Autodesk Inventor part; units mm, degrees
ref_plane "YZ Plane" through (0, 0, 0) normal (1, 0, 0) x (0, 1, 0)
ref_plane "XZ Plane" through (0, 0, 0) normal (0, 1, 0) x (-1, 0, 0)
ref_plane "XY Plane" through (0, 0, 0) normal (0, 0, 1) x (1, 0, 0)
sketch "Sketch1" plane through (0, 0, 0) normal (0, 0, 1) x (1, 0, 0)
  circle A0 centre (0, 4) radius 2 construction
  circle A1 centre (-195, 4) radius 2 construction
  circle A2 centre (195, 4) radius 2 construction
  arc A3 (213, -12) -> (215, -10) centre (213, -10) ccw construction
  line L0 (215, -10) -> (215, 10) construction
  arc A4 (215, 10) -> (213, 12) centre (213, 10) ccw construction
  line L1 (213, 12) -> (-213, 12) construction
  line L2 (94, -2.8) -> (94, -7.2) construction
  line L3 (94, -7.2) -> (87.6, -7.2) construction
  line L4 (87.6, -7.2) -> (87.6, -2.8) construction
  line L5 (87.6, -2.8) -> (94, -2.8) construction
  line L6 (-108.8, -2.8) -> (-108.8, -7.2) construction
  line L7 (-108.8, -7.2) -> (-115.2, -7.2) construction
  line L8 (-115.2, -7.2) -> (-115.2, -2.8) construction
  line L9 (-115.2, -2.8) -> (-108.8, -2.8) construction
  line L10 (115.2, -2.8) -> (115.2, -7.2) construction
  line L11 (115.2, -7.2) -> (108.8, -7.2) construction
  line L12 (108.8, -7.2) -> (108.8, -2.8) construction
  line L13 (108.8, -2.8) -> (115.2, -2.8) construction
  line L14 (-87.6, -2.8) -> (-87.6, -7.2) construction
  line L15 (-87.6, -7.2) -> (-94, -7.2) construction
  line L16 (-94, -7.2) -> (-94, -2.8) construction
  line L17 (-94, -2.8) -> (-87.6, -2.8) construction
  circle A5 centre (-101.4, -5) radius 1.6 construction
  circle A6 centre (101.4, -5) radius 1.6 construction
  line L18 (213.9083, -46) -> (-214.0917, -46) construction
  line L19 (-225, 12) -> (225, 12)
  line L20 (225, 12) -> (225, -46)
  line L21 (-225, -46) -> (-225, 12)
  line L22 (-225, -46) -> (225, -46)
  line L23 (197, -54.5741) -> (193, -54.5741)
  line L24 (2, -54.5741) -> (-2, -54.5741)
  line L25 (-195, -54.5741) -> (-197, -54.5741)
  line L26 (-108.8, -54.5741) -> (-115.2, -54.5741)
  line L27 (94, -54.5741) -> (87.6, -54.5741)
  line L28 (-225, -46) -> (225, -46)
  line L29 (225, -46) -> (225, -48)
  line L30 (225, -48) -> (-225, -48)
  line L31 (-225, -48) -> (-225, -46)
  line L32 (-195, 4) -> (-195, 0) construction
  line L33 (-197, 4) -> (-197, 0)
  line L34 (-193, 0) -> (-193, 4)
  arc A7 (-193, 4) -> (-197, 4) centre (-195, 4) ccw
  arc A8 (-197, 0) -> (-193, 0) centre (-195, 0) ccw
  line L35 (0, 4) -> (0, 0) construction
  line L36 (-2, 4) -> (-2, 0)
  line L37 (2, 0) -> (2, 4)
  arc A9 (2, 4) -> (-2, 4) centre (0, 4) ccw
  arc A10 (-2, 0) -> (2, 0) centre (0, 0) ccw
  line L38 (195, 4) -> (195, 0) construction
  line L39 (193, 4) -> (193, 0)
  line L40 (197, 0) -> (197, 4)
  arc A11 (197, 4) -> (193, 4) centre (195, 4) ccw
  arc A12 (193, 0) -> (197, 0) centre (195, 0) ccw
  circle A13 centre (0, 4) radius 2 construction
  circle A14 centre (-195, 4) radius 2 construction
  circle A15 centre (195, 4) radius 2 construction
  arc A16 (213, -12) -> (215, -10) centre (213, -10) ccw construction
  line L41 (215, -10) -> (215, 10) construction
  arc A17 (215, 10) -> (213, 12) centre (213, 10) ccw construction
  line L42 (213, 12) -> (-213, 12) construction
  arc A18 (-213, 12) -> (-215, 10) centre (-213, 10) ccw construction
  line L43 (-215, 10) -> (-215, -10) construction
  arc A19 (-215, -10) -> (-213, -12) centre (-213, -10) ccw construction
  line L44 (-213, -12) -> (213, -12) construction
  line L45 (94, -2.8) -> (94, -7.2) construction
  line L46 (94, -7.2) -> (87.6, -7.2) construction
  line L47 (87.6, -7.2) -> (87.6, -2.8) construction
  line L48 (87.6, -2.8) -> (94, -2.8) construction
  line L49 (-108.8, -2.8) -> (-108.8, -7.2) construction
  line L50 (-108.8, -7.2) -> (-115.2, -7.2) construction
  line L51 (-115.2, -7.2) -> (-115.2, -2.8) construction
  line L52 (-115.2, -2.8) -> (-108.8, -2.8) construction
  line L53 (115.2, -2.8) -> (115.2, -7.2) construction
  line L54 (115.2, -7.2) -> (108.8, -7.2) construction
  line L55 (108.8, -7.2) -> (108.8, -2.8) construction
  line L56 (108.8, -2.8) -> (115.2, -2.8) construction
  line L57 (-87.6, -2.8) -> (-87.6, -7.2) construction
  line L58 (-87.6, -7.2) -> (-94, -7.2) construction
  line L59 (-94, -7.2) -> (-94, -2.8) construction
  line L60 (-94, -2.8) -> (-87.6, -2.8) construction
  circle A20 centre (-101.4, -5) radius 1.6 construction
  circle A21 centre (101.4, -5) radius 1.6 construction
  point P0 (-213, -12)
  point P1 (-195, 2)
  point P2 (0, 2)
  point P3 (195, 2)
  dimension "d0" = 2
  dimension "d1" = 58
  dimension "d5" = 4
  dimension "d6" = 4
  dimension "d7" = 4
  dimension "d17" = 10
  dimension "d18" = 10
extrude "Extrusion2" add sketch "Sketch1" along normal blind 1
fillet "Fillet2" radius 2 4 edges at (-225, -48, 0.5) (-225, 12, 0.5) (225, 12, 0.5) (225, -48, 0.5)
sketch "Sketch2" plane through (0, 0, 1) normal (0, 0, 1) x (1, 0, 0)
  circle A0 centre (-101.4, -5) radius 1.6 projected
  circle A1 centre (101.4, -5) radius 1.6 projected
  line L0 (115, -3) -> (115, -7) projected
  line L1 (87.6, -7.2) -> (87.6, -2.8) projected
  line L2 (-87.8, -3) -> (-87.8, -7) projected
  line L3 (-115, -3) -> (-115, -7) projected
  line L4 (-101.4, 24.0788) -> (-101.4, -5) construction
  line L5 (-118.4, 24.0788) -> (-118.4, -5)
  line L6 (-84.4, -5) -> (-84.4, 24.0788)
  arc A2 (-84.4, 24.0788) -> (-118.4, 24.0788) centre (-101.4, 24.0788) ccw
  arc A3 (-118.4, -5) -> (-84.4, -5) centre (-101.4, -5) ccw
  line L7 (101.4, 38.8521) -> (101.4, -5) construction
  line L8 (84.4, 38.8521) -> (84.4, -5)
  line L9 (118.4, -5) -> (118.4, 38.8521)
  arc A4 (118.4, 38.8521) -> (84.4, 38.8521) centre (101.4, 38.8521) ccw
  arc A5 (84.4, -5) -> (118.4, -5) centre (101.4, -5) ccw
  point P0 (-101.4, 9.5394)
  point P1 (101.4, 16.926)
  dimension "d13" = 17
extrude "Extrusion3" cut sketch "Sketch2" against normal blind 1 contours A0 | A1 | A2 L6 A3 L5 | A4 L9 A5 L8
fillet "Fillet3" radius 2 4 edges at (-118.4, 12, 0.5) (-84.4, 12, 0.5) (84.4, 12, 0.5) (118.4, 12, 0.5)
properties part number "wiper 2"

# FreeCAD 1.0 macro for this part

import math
import FreeCAD as App
import Part
import Sketcher

V = App.Vector


def edges_at(feature, points):
    """Names of the edges that pass closest to the given points."""
    edges = feature.Shape.Edges
    near = lambda p: min(range(len(edges)), key=lambda i: edges[i].distToShape(Part.Vertex(*p))[0])
    return sorted({f"Edge{near(p) + 1}" for p in points})

doc = App.newDocument("Part")
body = doc.addObject("PartDesign::Body", "Body")

# Sketch on XY plane
sketch1 = body.newObject("Sketcher::SketchObject", "Sketch")
sketch1.AttachmentSupport = (doc.getObject("XY_Plane"), [""])
sketch1.MapMode = "FlatFace"
sketch1.addGeometry([
    Part.LineSegment(V(225, 12, 0), V(-225, 12, 0)),  # 0
    Part.LineSegment(V(-225, 12, 0), V(-225, -48, 0)),  # 1
    Part.LineSegment(V(-225, -48, 0), V(225, -48, 0)),  # 2
    Part.LineSegment(V(225, -48, 0), V(225, 12, 0)),  # 3
    Part.LineSegment(V(-197, 0, 0), V(-197, 4, 0)),  # 4
    Part.ArcOfCircle(Part.Circle(V(-195, 4, 0), V(0, 0, 1), 2), math.radians(0), math.radians(180)),  # 5
    Part.LineSegment(V(-193, 4, 0), V(-193, 0, 0)),  # 6
    Part.ArcOfCircle(Part.Circle(V(-195, 0, 0), V(0, 0, 1), 2), math.radians(180), math.radians(360)),  # 7
    Part.LineSegment(V(-2, 0, 0), V(-2, 4, 0)),  # 8
    Part.ArcOfCircle(Part.Circle(V(0, 4, 0), V(0, 0, 1), 2), math.radians(0), math.radians(180)),  # 9
    Part.LineSegment(V(2, 4, 0), V(2, 0, 0)),  # 10
    Part.ArcOfCircle(Part.Circle(V(0, 0, 0), V(0, 0, 1), 2), math.radians(180), math.radians(360)),  # 11
    Part.LineSegment(V(193, 0, 0), V(193, 4, 0)),  # 12
    Part.ArcOfCircle(Part.Circle(V(195, 4, 0), V(0, 0, 1), 2), math.radians(0), math.radians(180)),  # 13
    Part.LineSegment(V(197, 4, 0), V(197, 0, 0)),  # 14
    Part.ArcOfCircle(Part.Circle(V(195, 0, 0), V(0, 0, 1), 2), math.radians(180), math.radians(360)),  # 15
], False)
sketch1.addConstraint([
    Sketcher.Constraint("Coincident", 0, 2, 1, 1),
    Sketcher.Constraint("Coincident", 1, 2, 2, 1),
    Sketcher.Constraint("Coincident", 2, 2, 3, 1),
    Sketcher.Constraint("Coincident", 3, 2, 0, 1),
    Sketcher.Constraint("Tangent", 4, 2, 5, 2),
    Sketcher.Constraint("Tangent", 5, 1, 6, 1),
    Sketcher.Constraint("Tangent", 6, 2, 7, 2),
    Sketcher.Constraint("Tangent", 7, 1, 4, 1),
    Sketcher.Constraint("Tangent", 8, 2, 9, 2),
    Sketcher.Constraint("Tangent", 9, 1, 10, 1),
    Sketcher.Constraint("Tangent", 10, 2, 11, 2),
    Sketcher.Constraint("Tangent", 11, 1, 8, 1),
    Sketcher.Constraint("Tangent", 12, 2, 13, 2),
    Sketcher.Constraint("Tangent", 13, 1, 14, 1),
    Sketcher.Constraint("Tangent", 14, 2, 15, 2),
    Sketcher.Constraint("Tangent", 15, 1, 12, 1),
    Sketcher.Constraint("Horizontal", 0),
    Sketcher.Constraint("Vertical", 1),
    Sketcher.Constraint("Horizontal", 2),
    Sketcher.Constraint("Vertical", 3),
    Sketcher.Constraint("Vertical", 4),
    Sketcher.Constraint("Vertical", 6),
    Sketcher.Constraint("Vertical", 8),
    Sketcher.Constraint("Vertical", 10),
    Sketcher.Constraint("Vertical", 12),
    Sketcher.Constraint("Vertical", 14),
    Sketcher.Constraint("Coincident", 11, 3, -1, 1),
    Sketcher.Constraint("Equal", 7, 9),
    Sketcher.Constraint("Equal", 11, 13),
    Sketcher.Constraint("Symmetric", 7, 3, 15, 3, -1, 1),
    Sketcher.Constraint("PointOnObject", 7, 3, -1),
    Sketcher.Constraint("Horizontal", 5, 3, 9, 3),
    Sketcher.Constraint("Horizontal", 9, 3, 13, 3),
    Sketcher.Constraint("Radius", 5, 2.0),
    Sketcher.Constraint("DistanceY", 4, 1, 4, 2, 4.0),
    Sketcher.Constraint("DistanceX", 0, 2, 0, 1, 450.0),
    Sketcher.Constraint("DistanceY", 1, 2, 1, 1, 60.0),
    Sketcher.Constraint("DistanceX", 5, 3, -1, 1, 195.0),
    Sketcher.Constraint("DistanceX", 0, 2, -1, 1, 225.0),
    Sketcher.Constraint("DistanceY", -1, 1, 0, 2, 12.0),
])
pad1 = body.newObject("PartDesign::Pad", "Pad")
pad1.Profile = sketch1
pad1.Length = 1
doc.recompute()

fillet = body.newObject("PartDesign::Fillet", "Fillet")
fillet.Base = (pad1, edges_at(pad1, [
    (-225, -48, 0.5),
    (-225, 12, 0.5),
    (225, 12, 0.5),
    (225, -48, 0.5),
]))
fillet.Radius = 2

# Sketch on XY plane
sketch2 = body.newObject("Sketcher::SketchObject", "Sketch001")
sketch2.AttachmentSupport = (doc.getObject("XY_Plane"), [""])
sketch2.MapMode = "FlatFace"
sketch2.AttachmentOffset = App.Placement(V(0, 0, 1), App.Rotation())
sketch2.addGeometry([
    Part.ArcOfCircle(Part.Circle(V(-101, 24, 0), V(0, 0, 1), 17), math.radians(0), math.radians(180)),  # 0
    Part.LineSegment(V(-118, 24, 0), V(-118, -5, 0)),  # 1
    Part.ArcOfCircle(Part.Circle(V(-101, -5, 0), V(0, 0, 1), 17), math.radians(180), math.radians(360)),  # 2
    Part.LineSegment(V(-84, -5, 0), V(-84, 24, 0)),  # 3
    Part.ArcOfCircle(Part.Circle(V(101, 39, 0), V(0, 0, 1), 17), math.radians(0), math.radians(180)),  # 4
    Part.LineSegment(V(84, 39, 0), V(84, -5, 0)),  # 5
    Part.ArcOfCircle(Part.Circle(V(101, -5, 0), V(0, 0, 1), 17), math.radians(180), math.radians(360)),  # 6
    Part.LineSegment(V(118, -5, 0), V(118, 39, 0)),  # 7
], False)
sketch2.addConstraint([
    Sketcher.Constraint("Tangent", 0, 2, 1, 1),
    Sketcher.Constraint("Tangent", 1, 2, 2, 1),
    Sketcher.Constraint("Tangent", 2, 2, 3, 1),
    Sketcher.Constraint("Tangent", 3, 2, 0, 1),
    Sketcher.Constraint("Tangent", 4, 2, 5, 1),
    Sketcher.Constraint("Tangent", 5, 2, 6, 1),
    Sketcher.Constraint("Tangent", 6, 2, 7, 1),
    Sketcher.Constraint("Tangent", 7, 2, 4, 1),
    Sketcher.Constraint("Vertical", 1),
    Sketcher.Constraint("Vertical", 3),
    Sketcher.Constraint("Vertical", 5),
    Sketcher.Constraint("Vertical", 7),
    Sketcher.Constraint("Equal", 2, 4),
    Sketcher.Constraint("Symmetric", 2, 3, 6, 3, -2),
    Sketcher.Constraint("Radius", 0, 17.0),
    Sketcher.Constraint("DistanceY", 2, 3, -1, 1, 5.0),
    Sketcher.Constraint("DistanceX", 0, 3, -1, 1, 101.4),
    Sketcher.Constraint("DistanceY", 5, 2, 5, 1, 43.852),
    Sketcher.Constraint("DistanceY", 1, 2, 1, 1, 29.0788),
])
pocket1 = body.newObject("PartDesign::Pocket", "Pocket")
pocket1.Profile = sketch2
pocket1.Length = 1
doc.recompute()

fillet2 = body.newObject("PartDesign::Fillet", "Fillet001")
fillet2.Base = (pocket1, edges_at(pocket1, [
    (-118.4, 12, 0.5),
    (-84.4, 12, 0.5),
    (84.4, 12, 0.5),
    (118.4, 12, 0.5),
]))
fillet2.Radius = 2

doc.recompute()
